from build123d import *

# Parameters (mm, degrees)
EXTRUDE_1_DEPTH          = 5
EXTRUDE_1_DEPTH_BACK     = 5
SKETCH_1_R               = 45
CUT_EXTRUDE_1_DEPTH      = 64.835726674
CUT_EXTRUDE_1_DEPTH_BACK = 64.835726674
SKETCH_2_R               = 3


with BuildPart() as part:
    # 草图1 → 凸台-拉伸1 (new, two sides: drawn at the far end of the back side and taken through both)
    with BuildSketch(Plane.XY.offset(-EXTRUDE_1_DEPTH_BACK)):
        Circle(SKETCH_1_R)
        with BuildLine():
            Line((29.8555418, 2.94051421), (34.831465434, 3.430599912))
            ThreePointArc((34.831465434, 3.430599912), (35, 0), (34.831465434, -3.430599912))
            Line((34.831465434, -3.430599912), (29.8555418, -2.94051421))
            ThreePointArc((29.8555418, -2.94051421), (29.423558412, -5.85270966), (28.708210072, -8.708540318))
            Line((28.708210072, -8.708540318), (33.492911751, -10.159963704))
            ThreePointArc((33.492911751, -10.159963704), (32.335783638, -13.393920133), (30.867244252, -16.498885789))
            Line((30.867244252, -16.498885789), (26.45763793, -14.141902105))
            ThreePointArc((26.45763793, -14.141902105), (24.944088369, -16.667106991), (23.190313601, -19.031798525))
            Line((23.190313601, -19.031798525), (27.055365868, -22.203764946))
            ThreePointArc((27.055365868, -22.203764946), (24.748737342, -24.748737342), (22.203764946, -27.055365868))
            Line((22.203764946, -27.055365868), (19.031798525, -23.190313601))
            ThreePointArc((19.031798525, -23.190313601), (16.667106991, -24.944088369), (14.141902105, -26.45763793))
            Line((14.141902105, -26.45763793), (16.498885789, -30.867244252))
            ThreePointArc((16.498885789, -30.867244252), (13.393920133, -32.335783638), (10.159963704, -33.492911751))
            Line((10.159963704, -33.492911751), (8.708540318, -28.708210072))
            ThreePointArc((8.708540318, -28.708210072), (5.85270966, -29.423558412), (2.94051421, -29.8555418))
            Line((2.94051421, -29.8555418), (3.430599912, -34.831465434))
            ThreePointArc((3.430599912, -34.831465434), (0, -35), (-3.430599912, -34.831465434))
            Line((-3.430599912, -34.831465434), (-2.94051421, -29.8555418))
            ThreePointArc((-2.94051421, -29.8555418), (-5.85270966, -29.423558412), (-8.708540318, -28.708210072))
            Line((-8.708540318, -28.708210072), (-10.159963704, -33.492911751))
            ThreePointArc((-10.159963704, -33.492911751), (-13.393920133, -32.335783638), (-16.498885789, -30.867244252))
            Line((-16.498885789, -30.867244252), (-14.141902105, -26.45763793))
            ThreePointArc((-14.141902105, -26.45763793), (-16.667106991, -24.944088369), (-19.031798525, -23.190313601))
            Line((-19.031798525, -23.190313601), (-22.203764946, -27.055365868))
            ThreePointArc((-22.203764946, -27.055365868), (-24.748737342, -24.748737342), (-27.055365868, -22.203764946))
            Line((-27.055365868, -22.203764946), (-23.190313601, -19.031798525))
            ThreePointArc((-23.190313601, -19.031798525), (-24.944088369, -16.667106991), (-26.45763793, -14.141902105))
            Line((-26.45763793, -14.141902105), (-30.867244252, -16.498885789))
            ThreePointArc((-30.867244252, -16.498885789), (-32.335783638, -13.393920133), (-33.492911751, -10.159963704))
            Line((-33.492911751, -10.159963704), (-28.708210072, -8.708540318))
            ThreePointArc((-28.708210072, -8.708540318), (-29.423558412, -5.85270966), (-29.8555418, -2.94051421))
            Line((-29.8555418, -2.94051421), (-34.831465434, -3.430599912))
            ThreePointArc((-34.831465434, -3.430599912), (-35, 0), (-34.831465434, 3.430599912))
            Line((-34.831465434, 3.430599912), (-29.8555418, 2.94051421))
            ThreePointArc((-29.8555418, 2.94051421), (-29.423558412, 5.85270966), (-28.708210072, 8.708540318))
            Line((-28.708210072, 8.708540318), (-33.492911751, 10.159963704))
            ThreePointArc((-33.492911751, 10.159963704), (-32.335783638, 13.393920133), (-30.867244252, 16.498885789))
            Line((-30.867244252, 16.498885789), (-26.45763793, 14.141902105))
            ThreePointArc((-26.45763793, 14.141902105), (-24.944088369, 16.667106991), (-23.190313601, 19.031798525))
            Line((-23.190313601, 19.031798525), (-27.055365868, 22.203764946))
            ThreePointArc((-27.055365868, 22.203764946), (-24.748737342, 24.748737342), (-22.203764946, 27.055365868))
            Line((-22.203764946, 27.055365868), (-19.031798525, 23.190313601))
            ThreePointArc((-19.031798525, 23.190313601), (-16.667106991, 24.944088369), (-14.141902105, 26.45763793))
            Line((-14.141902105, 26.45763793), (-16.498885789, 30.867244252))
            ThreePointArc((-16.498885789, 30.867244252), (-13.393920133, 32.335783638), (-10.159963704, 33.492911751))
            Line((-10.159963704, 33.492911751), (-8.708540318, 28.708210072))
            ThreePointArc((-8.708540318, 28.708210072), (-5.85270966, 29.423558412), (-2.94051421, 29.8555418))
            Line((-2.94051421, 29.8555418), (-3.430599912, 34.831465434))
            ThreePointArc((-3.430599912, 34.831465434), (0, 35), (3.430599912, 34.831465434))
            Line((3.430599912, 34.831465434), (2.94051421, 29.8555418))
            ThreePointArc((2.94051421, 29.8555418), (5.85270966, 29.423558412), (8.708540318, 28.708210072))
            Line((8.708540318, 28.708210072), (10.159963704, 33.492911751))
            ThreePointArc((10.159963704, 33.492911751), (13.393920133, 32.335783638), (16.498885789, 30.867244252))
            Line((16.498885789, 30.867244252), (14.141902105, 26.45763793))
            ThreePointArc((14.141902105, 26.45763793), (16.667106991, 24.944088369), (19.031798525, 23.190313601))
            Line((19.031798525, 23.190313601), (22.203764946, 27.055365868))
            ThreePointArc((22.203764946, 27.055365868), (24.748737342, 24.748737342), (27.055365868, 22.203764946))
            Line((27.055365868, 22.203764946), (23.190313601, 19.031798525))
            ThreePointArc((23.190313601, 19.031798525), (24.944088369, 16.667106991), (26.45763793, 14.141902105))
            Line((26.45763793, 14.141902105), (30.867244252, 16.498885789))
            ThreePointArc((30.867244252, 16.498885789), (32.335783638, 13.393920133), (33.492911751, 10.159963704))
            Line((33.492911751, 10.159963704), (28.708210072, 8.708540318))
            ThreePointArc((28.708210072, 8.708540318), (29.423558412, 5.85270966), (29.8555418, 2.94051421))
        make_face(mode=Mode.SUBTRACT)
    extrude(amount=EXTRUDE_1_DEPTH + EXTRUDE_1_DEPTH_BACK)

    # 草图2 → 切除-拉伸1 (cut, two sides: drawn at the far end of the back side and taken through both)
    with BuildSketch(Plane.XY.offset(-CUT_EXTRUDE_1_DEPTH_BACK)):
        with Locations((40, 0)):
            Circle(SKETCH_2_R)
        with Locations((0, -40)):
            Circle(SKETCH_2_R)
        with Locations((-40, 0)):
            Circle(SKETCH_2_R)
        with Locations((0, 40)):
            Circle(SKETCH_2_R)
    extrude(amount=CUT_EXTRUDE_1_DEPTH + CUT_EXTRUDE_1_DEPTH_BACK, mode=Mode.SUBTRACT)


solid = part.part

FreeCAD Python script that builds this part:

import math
import FreeCAD as App
import Part
import Sketcher
Q = App.Units.Quantity

doc = App.newDocument("Part")
body = doc.addObject("PartDesign::Body", "Body")

# Sketch on XY plane
sketch1 = doc.addObject("Sketcher::SketchObject", "Sketch")
body.addObject(sketch1)
sketch1.AttachmentSupport = (doc.XY_Plane, [""])
sketch1.MapMode = "FlatFace"
sketch1.addGeometry([
    Part.Circle(App.Vector(0, 0, 0), App.Vector(0, 0, 1), 45),  # 0
    Part.ArcOfCircle(Part.Circle(App.Vector(0, 0, 0), App.Vector(0, 0, 1), 30), math.radians(5.63), math.radians(16.87)),  # 1
    Part.LineSegment(App.Vector(30, 3, 0), App.Vector(35, 3, 0)),  # 2
    Part.ArcOfCircle(Part.Circle(App.Vector(0, 0, 0), App.Vector(0, 0, 1), 35), math.radians(-5.62), math.radians(5.62)),  # 3
    Part.LineSegment(App.Vector(35, -3, 0), App.Vector(30, -3, 0)),  # 4
    Part.ArcOfCircle(Part.Circle(App.Vector(0, 0, 0), App.Vector(0, 0, 1), 30), math.radians(-16.87), math.radians(-5.63)),  # 5
    Part.LineSegment(App.Vector(29, -9, 0), App.Vector(33, -10, 0)),  # 6
    Part.ArcOfCircle(Part.Circle(App.Vector(0, 0, 0), App.Vector(0, 0, 1), 35), math.radians(-28.13), math.radians(-16.88)),  # 7
    Part.LineSegment(App.Vector(31, -16, 0), App.Vector(26, -14, 0)),  # 8
    Part.ArcOfCircle(Part.Circle(App.Vector(0, 0, 0), App.Vector(0, 0, 1), 30), math.radians(-39.38), math.radians(-28.12)),  # 9
    Part.LineSegment(App.Vector(23, -19, 0), App.Vector(27, -22, 0)),  # 10
    Part.ArcOfCircle(Part.Circle(App.Vector(0, 0, 0), App.Vector(0, 0, 1), 35), math.radians(-50.63), math.radians(-39.37)),  # 11
    Part.LineSegment(App.Vector(22, -27, 0), App.Vector(19, -23, 0)),  # 12
    Part.ArcOfCircle(Part.Circle(App.Vector(0, 0, 0), App.Vector(0, 0, 1), 30), math.radians(-61.88), math.radians(-50.62)),  # 13
    Part.LineSegment(App.Vector(14, -26, 0), App.Vector(16, -31, 0)),  # 14
    Part.ArcOfCircle(Part.Circle(App.Vector(0, 0, 0), App.Vector(0, 0, 1), 35), math.radians(-73.12), math.radians(-61.87)),  # 15
    Part.LineSegment(App.Vector(10, -33, 0), App.Vector(9, -29, 0)),  # 16
    Part.ArcOfCircle(Part.Circle(App.Vector(0, 0, 0), App.Vector(0, 0, 1), 30), math.radians(-84.37), math.radians(-73.13)),  # 17
    Part.LineSegment(App.Vector(3, -30, 0), App.Vector(3, -35, 0)),  # 18
    Part.ArcOfCircle(Part.Circle(App.Vector(0, 0, 0), App.Vector(0, 0, 1), 35), math.radians(-95.62), math.radians(-84.38)),  # 19
    Part.LineSegment(App.Vector(-3, -35, 0), App.Vector(-3, -30, 0)),  # 20
    Part.ArcOfCircle(Part.Circle(App.Vector(0, 0, 0), App.Vector(0, 0, 1), 30), math.radians(-106.87), math.radians(-95.63)),  # 21
    Part.LineSegment(App.Vector(-9, -29, 0), App.Vector(-10, -33, 0)),  # 22
    Part.ArcOfCircle(Part.Circle(App.Vector(0, 0, 0), App.Vector(0, 0, 1), 35), math.radians(-118.13), math.radians(-106.88)),  # 23
    Part.LineSegment(App.Vector(-16, -31, 0), App.Vector(-14, -26, 0)),  # 24
    Part.ArcOfCircle(Part.Circle(App.Vector(0, 0, 0), App.Vector(0, 0, 1), 30), math.radians(-129.38), math.radians(-118.12)),  # 25
    Part.LineSegment(App.Vector(-19, -23, 0), App.Vector(-22, -27, 0)),  # 26
    Part.ArcOfCircle(Part.Circle(App.Vector(0, 0, 0), App.Vector(0, 0, 1), 35), math.radians(-140.63), math.radians(-129.37)),  # 27
    Part.LineSegment(App.Vector(-27, -22, 0), App.Vector(-23, -19, 0)),  # 28
    Part.ArcOfCircle(Part.Circle(App.Vector(0, 0, 0), App.Vector(0, 0, 1), 30), math.radians(-151.88), math.radians(-140.62)),  # 29
    Part.LineSegment(App.Vector(-26, -14, 0), App.Vector(-31, -16, 0)),  # 30
    Part.ArcOfCircle(Part.Circle(App.Vector(0, 0, 0), App.Vector(0, 0, 1), 35), math.radians(-163.12), math.radians(-151.87)),  # 31
    Part.LineSegment(App.Vector(-33, -10, 0), App.Vector(-29, -9, 0)),  # 32
    Part.ArcOfCircle(Part.Circle(App.Vector(0, 0, 0), App.Vector(0, 0, 1), 30), math.radians(-174.37), math.radians(-163.13)),  # 33
    Part.LineSegment(App.Vector(-30, -3, 0), App.Vector(-35, -3, 0)),  # 34
    Part.ArcOfCircle(Part.Circle(App.Vector(0, 0, 0), App.Vector(0, 0, 1), 35), math.radians(174.38), math.radians(185.62)),  # 35
    Part.LineSegment(App.Vector(-35, 3, 0), App.Vector(-30, 3, 0)),  # 36
    Part.ArcOfCircle(Part.Circle(App.Vector(0, 0, 0), App.Vector(0, 0, 1), 30), math.radians(163.13), math.radians(174.37)),  # 37
    Part.LineSegment(App.Vector(-29, 9, 0), App.Vector(-33, 10, 0)),  # 38
    Part.ArcOfCircle(Part.Circle(App.Vector(0, 0, 0), App.Vector(0, 0, 1), 35), math.radians(151.87), math.radians(163.12)),  # 39
    Part.LineSegment(App.Vector(-31, 16, 0), App.Vector(-26, 14, 0)),  # 40
    Part.ArcOfCircle(Part.Circle(App.Vector(0, 0, 0), App.Vector(0, 0, 1), 30), math.radians(140.62), math.radians(151.88)),  # 41
    Part.LineSegment(App.Vector(-23, 19, 0), App.Vector(-27, 22, 0)),  # 42
    Part.ArcOfCircle(Part.Circle(App.Vector(0, 0, 0), App.Vector(0, 0, 1), 35), math.radians(129.37), math.radians(140.63)),  # 43
    Part.LineSegment(App.Vector(-22, 27, 0), App.Vector(-19, 23, 0)),  # 44
    Part.ArcOfCircle(Part.Circle(App.Vector(0, 0, 0), App.Vector(0, 0, 1), 30), math.radians(118.12), math.radians(129.38)),  # 45
    Part.LineSegment(App.Vector(-14, 26, 0), App.Vector(-16, 31, 0)),  # 46
    Part.ArcOfCircle(Part.Circle(App.Vector(0, 0, 0), App.Vector(0, 0, 1), 35), math.radians(106.88), math.radians(118.13)),  # 47
    Part.LineSegment(App.Vector(-10, 33, 0), App.Vector(-9, 29, 0)),  # 48
    Part.ArcOfCircle(Part.Circle(App.Vector(0, 0, 0), App.Vector(0, 0, 1), 30), math.radians(95.63), math.radians(106.87)),  # 49
    Part.LineSegment(App.Vector(-3, 30, 0), App.Vector(-3, 35, 0)),  # 50
    Part.ArcOfCircle(Part.Circle(App.Vector(0, 0, 0), App.Vector(0, 0, 1), 35), math.radians(84.38), math.radians(95.62)),  # 51
    Part.LineSegment(App.Vector(3, 35, 0), App.Vector(3, 30, 0)),  # 52
    Part.ArcOfCircle(Part.Circle(App.Vector(0, 0, 0), App.Vector(0, 0, 1), 30), math.radians(73.13), math.radians(84.37)),  # 53
    Part.LineSegment(App.Vector(9, 29, 0), App.Vector(10, 33, 0)),  # 54
    Part.ArcOfCircle(Part.Circle(App.Vector(0, 0, 0), App.Vector(0, 0, 1), 35), math.radians(61.87), math.radians(73.12)),  # 55
    Part.LineSegment(App.Vector(16, 31, 0), App.Vector(14, 26, 0)),  # 56
    Part.ArcOfCircle(Part.Circle(App.Vector(0, 0, 0), App.Vector(0, 0, 1), 30), math.radians(50.62), math.radians(61.88)),  # 57
    Part.LineSegment(App.Vector(19, 23, 0), App.Vector(22, 27, 0)),  # 58
    Part.ArcOfCircle(Part.Circle(App.Vector(0, 0, 0), App.Vector(0, 0, 1), 35), math.radians(39.37), math.radians(50.63)),  # 59
    Part.LineSegment(App.Vector(27, 22, 0), App.Vector(23, 19, 0)),  # 60
    Part.ArcOfCircle(Part.Circle(App.Vector(0, 0, 0), App.Vector(0, 0, 1), 30), math.radians(28.12), math.radians(39.38)),  # 61
    Part.LineSegment(App.Vector(26, 14, 0), App.Vector(31, 16, 0)),  # 62
    Part.ArcOfCircle(Part.Circle(App.Vector(0, 0, 0), App.Vector(0, 0, 1), 35), math.radians(16.88), math.radians(28.13)),  # 63
    Part.LineSegment(App.Vector(33, 10, 0), App.Vector(29, 9, 0)),  # 64
], False)
sketch1.addConstraint([
    Sketcher.Constraint("Coincident", 1, 1, 2, 1),
    Sketcher.Constraint("Coincident", 2, 2, 3, 2),
    Sketcher.Constraint("Coincident", 3, 1, 4, 1),
    Sketcher.Constraint("Coincident", 4, 2, 5, 2),
    Sketcher.Constraint("Coincident", 5, 1, 6, 1),
    Sketcher.Constraint("Coincident", 6, 2, 7, 2),
    Sketcher.Constraint("Coincident", 7, 1, 8, 1),
    Sketcher.Constraint("Coincident", 8, 2, 9, 2),
    Sketcher.Constraint("Coincident", 9, 1, 10, 1),
    Sketcher.Constraint("Coincident", 10, 2, 11, 2),
    Sketcher.Constraint("Coincident", 11, 1, 12, 1),
    Sketcher.Constraint("Coincident", 12, 2, 13, 2),
    Sketcher.Constraint("Coincident", 13, 1, 14, 1),
    Sketcher.Constraint("Coincident", 14, 2, 15, 2),
    Sketcher.Constraint("Coincident", 15, 1, 16, 1),
    Sketcher.Constraint("Coincident", 16, 2, 17, 2),
    Sketcher.Constraint("Coincident", 17, 1, 18, 1),
    Sketcher.Constraint("Coincident", 18, 2, 19, 2),
    Sketcher.Constraint("Coincident", 19, 1, 20, 1),
    Sketcher.Constraint("Coincident", 20, 2, 21, 2),
    Sketcher.Constraint("Coincident", 21, 1, 22, 1),
    Sketcher.Constraint("Coincident", 22, 2, 23, 2),
    Sketcher.Constraint("Coincident", 23, 1, 24, 1),
    Sketcher.Constraint("Coincident", 24, 2, 25, 2),
    Sketcher.Constraint("Coincident", 25, 1, 26, 1),
    Sketcher.Constraint("Coincident", 26, 2, 27, 2),
    Sketcher.Constraint("Coincident", 27, 1, 28, 1),
    Sketcher.Constraint("Coincident", 28, 2, 29, 2),
    Sketcher.Constraint("Coincident", 29, 1, 30, 1),
    Sketcher.Constraint("Coincident", 30, 2, 31, 2),
    Sketcher.Constraint("Coincident", 31, 1, 32, 1),
    Sketcher.Constraint("Coincident", 32, 2, 33, 2),
    Sketcher.Constraint("Coincident", 33, 1, 34, 1),
    Sketcher.Constraint("Coincident", 34, 2, 35, 2),
    Sketcher.Constraint("Coincident", 35, 1, 36, 1),
    Sketcher.Constraint("Coincident", 36, 2, 37, 2),
    Sketcher.Constraint("Coincident", 37, 1, 38, 1),
    Sketcher.Constraint("Coincident", 38, 2, 39, 2),
    Sketcher.Constraint("Coincident", 39, 1, 40, 1),
    Sketcher.Constraint("Coincident", 40, 2, 41, 2),
    Sketcher.Constraint("Coincident", 41, 1, 42, 1),
    Sketcher.Constraint("Coincident", 42, 2, 43, 2),
    Sketcher.Constraint("Coincident", 43, 1, 44, 1),
    Sketcher.Constraint("Coincident", 44, 2, 45, 2),
    Sketcher.Constraint("Coincident", 45, 1, 46, 1),
    Sketcher.Constraint("Coincident", 46, 2, 47, 2),
    Sketcher.Constraint("Coincident", 47, 1, 48, 1),
    Sketcher.Constraint("Coincident", 48, 2, 49, 2),
    Sketcher.Constraint("Coincident", 49, 1, 50, 1),
    Sketcher.Constraint("Coincident", 50, 2, 51, 2),
    Sketcher.Constraint("Coincident", 51, 1, 52, 1),
    Sketcher.Constraint("Coincident", 52, 2, 53, 2),
    Sketcher.Constraint("Coincident", 53, 1, 54, 1),
    Sketcher.Constraint("Coincident", 54, 2, 55, 2),
    Sketcher.Constraint("Coincident", 55, 1, 56, 1),
    Sketcher.Constraint("Coincident", 56, 2, 57, 2),
    Sketcher.Constraint("Coincident", 57, 1, 58, 1),
    Sketcher.Constraint("Coincident", 58, 2, 59, 2),
    Sketcher.Constraint("Coincident", 59, 1, 60, 1),
    Sketcher.Constraint("Coincident", 60, 2, 61, 2),
    Sketcher.Constraint("Coincident", 61, 1, 62, 1),
    Sketcher.Constraint("Coincident", 62, 2, 63, 2),
    Sketcher.Constraint("Coincident", 63, 1, 64, 1),
    Sketcher.Constraint("Coincident", 64, 2, 1, 2),
    Sketcher.Constraint("Coincident", 0, 3, -1, 1),
    Sketcher.Constraint("Coincident", 1, 3, -1, 1),
    Sketcher.Constraint("Coincident", 3, 3, -1, 1),
    Sketcher.Constraint("Coincident", 5, 3, -1, 1),
    Sketcher.Constraint("Coincident", 7, 3, -1, 1),
    Sketcher.Constraint("Coincident", 9, 3, -1, 1),
    Sketcher.Constraint("Coincident", 11, 3, -1, 1),
    Sketcher.Constraint("Coincident", 13, 3, -1, 1),
    Sketcher.Constraint("Coincident", 15, 3, -1, 1),
    Sketcher.Constraint("Coincident", 17, 3, -1, 1),
    Sketcher.Constraint("Coincident", 19, 3, -1, 1),
    Sketcher.Constraint("Coincident", 21, 3, -1, 1),
    Sketcher.Constraint("Coincident", 23, 3, -1, 1),
    Sketcher.Constraint("Coincident", 25, 3, -1, 1),
    Sketcher.Constraint("Coincident", 27, 3, -1, 1),
    Sketcher.Constraint("Coincident", 29, 3, -1, 1),
    Sketcher.Constraint("Coincident", 31, 3, -1, 1),
    Sketcher.Constraint("Coincident", 33, 3, -1, 1),
    Sketcher.Constraint("Coincident", 35, 3, -1, 1),
    Sketcher.Constraint("Coincident", 37, 3, -1, 1),
    Sketcher.Constraint("Coincident", 39, 3, -1, 1),
    Sketcher.Constraint("Coincident", 41, 3, -1, 1),
    Sketcher.Constraint("Coincident", 43, 3, -1, 1),
    Sketcher.Constraint("Coincident", 45, 3, -1, 1),
    Sketcher.Constraint("Coincident", 47, 3, -1, 1),
    Sketcher.Constraint("Coincident", 49, 3, -1, 1),
    Sketcher.Constraint("Coincident", 51, 3, -1, 1),
    Sketcher.Constraint("Coincident", 53, 3, -1, 1),
    Sketcher.Constraint("Coincident", 55, 3, -1, 1),
    Sketcher.Constraint("Coincident", 57, 3, -1, 1),
    Sketcher.Constraint("Coincident", 59, 3, -1, 1),
    Sketcher.Constraint("Coincident", 61, 3, -1, 1),
    Sketcher.Constraint("Coincident", 63, 3, -1, 1),
    Sketcher.Constraint("Equal", 1, 5),
    Sketcher.Constraint("Equal", 3, 7),
    Sketcher.Constraint("Equal", 5, 9),
    Sketcher.Constraint("Equal", 7, 11),
    Sketcher.Constraint("Equal", 9, 13),
    Sketcher.Constraint("Equal", 11, 15),
    Sketcher.Constraint("Equal", 13, 17),
    Sketcher.Constraint("Equal", 15, 19),
    Sketcher.Constraint("Equal", 17, 21),
    Sketcher.Constraint("Equal", 19, 23),
    Sketcher.Constraint("Equal", 21, 25),
    Sketcher.Constraint("Equal", 23, 27),
    Sketcher.Constraint("Equal", 25, 29),
    Sketcher.Constraint("Equal", 27, 31),
    Sketcher.Constraint("Equal", 29, 33),
    Sketcher.Constraint("Equal", 31, 35),
    Sketcher.Constraint("Equal", 33, 37),
    Sketcher.Constraint("Equal", 35, 39),
    Sketcher.Constraint("Equal", 37, 41),
    Sketcher.Constraint("Equal", 39, 43),
    Sketcher.Constraint("Equal", 41, 45),
    Sketcher.Constraint("Equal", 43, 47),
    Sketcher.Constraint("Equal", 45, 49),
    Sketcher.Constraint("Equal", 47, 51),
    Sketcher.Constraint("Equal", 49, 53),
    Sketcher.Constraint("Equal", 51, 55),
    Sketcher.Constraint("Equal", 53, 57),
    Sketcher.Constraint("Equal", 55, 59),
    Sketcher.Constraint("Equal", 57, 61),
    Sketcher.Constraint("Equal", 59, 63),
    Sketcher.Constraint("Perpendicular", 2, 18),
    Sketcher.Constraint("Perpendicular", 4, 20),
    Sketcher.Constraint("Perpendicular", 6, 22),
    Sketcher.Constraint("Perpendicular", 8, 24),
    Sketcher.Constraint("Perpendicular", 10, 26),
    Sketcher.Constraint("Perpendicular", 12, 28),
    Sketcher.Constraint("Perpendicular", 14, 30),
    Sketcher.Constraint("Perpendicular", 16, 32),
    Sketcher.Constraint("Perpendicular", 18, 34),
    Sketcher.Constraint("Perpendicular", 20, 36),
    Sketcher.Constraint("Perpendicular", 22, 38),
    Sketcher.Constraint("Perpendicular", 24, 40),
    Sketcher.Constraint("Perpendicular", 26, 42),
    Sketcher.Constraint("Perpendicular", 28, 44),
    Sketcher.Constraint("Perpendicular", 30, 46),
    Sketcher.Constraint("Perpendicular", 32, 48),
    Sketcher.Constraint("Perpendicular", 34, 50),
    Sketcher.Constraint("Perpendicular", 36, 52),
    Sketcher.Constraint("Perpendicular", 38, 54),
    Sketcher.Constraint("Perpendicular", 40, 56),
    Sketcher.Constraint("Perpendicular", 42, 58),
    Sketcher.Constraint("Perpendicular", 44, 60),
    Sketcher.Constraint("Perpendicular", 46, 62),
    Sketcher.Constraint("Perpendicular", 48, 64),
    Sketcher.Constraint("Horizontal", 18, 2, 19, 1),
    Sketcher.Constraint("Horizontal", 17, 1, 20, 2),
    Sketcher.Constraint("Horizontal", 16, 2, 21, 1),
    Sketcher.Constraint("Horizontal", 15, 1, 22, 2),
    Sketcher.Constraint("Horizontal", 14, 2, 23, 1),
    Sketcher.Constraint("Horizontal", 13, 1, 24, 2),
    Sketcher.Constraint("Horizontal", 12, 2, 25, 1),
    Sketcher.Constraint("Horizontal", 11, 1, 26, 2),
    Sketcher.Constraint("Horizontal", 10, 2, 27, 1),
    Sketcher.Constraint("Horizontal", 8, 2, 29, 1),
    Sketcher.Constraint("Horizontal", 6, 2, 31, 1),
    Sketcher.Constraint("Horizontal", 4, 2, 33, 1),
    Sketcher.Constraint("Horizontal", 2, 2, 35, 1),
    Sketcher.Constraint("Horizontal", 50, 2, 51, 1),
    Sketcher.Constraint("Horizontal", 48, 2, 53, 1),
    Sketcher.Constraint("Horizontal", 46, 2, 55, 1),
    Sketcher.Constraint("Horizontal", 44, 2, 57, 1),
    Sketcher.Constraint("Horizontal", 42, 2, 59, 1),
    Sketcher.Constraint("Horizontal", 40, 2, 61, 1),
    Sketcher.Constraint("Horizontal", 38, 2, 63, 1),
    Sketcher.Constraint("Vertical", 2, 2, 3, 1),
    Sketcher.Constraint("Vertical", 32, 2, 37, 1),
    Sketcher.Constraint("Vertical", 30, 2, 39, 1),
    Sketcher.Constraint("Vertical", 28, 2, 41, 1),
    Sketcher.Constraint("Vertical", 26, 2, 43, 1),
    Sketcher.Constraint("Vertical", 24, 2, 45, 1),
    Sketcher.Constraint("Vertical", 22, 2, 47, 1),
    Sketcher.Constraint("Vertical", 20, 2, 49, 1),
    Sketcher.Constraint("Diameter", 0, Q("90 mm")),
    Sketcher.Constraint("Radius", 1, Q("30 mm")),
    Sketcher.Constraint("Radius", 3, Q("35 mm")),
    Sketcher.Constraint("DistanceY", -1, 1, 2, 2, Q("3.4306 mm")),
    Sketcher.Constraint("DistanceY", 9, 1, -1, 1, Q("19.031799 mm")),
    Sketcher.Constraint("DistanceX", -1, 1, 12, 2, Q("19.031799 mm")),
    Sketcher.Constraint("DistanceX", -1, 1, 18, 2, Q("3.4306 mm")),
    Sketcher.Constraint("DistanceX", -1, 1, 1, 1, Q("29.855542 mm")),
    Sketcher.Constraint("DistanceX", -1, 1, 5, 1, Q("28.70821 mm")),
    Sketcher.Constraint("DistanceX", -1, 1, 6, 2, Q("33.492912 mm")),
    Sketcher.Constraint("DistanceY", 15, 1, -1, 1, Q("33.492912 mm")),
    Sketcher.Constraint("DistanceX", -1, 1, 7, 1, Q("30.867244 mm")),
    Sketcher.Constraint("DistanceX", -1, 1, 8, 2, Q("26.457638 mm")),
    Sketcher.Constraint("DistanceX", -1, 1, 10, 2, Q("27.055366 mm")),
    Sketcher.Constraint("DistanceX", -1, 1, 13, 1, Q("14.141902 mm")),
])
pad1 = doc.addObject("PartDesign::Pad", "Pad")
body.addObject(pad1)
pad1.Profile = sketch1
pad1.Type = "TwoLengths"
pad1.Length = 5
pad1.Length2 = 5

# Sketch on XY plane
sketch2 = doc.addObject("Sketcher::SketchObject", "Sketch001")
body.addObject(sketch2)
sketch2.AttachmentSupport = (doc.XY_Plane, [""])
sketch2.MapMode = "FlatFace"
sketch2.addGeometry([
    Part.Circle(App.Vector(40, 0, 0), App.Vector(0, 0, 1), 3),
    Part.Circle(App.Vector(0, -40, 0), App.Vector(0, 0, 1), 3),
    Part.Circle(App.Vector(-40, 0, 0), App.Vector(0, 0, 1), 3),
    Part.Circle(App.Vector(0, 40, 0), App.Vector(0, 0, 1), 3),
], False)
sketch2.addConstraint([
    Sketcher.Constraint("Equal", 0, 1),
    Sketcher.Constraint("Equal", 1, 2),
    Sketcher.Constraint("Equal", 2, 3),
    Sketcher.Constraint("Symmetric", 0, 3, 2, 3, -1, 1),
    Sketcher.Constraint("Symmetric", 1, 3, 3, 3, -1, 1),
    Sketcher.Constraint("PointOnObject", 0, 3, -1),
    Sketcher.Constraint("PointOnObject", 1, 3, -2),
    Sketcher.Constraint("Diameter", 0, Q("6 mm")),
    Sketcher.Constraint("DistanceX", -1, 1, 0, 3, Q("40 mm")),
    Sketcher.Constraint("DistanceY", 1, 3, -1, 1, Q("40 mm")),
])
pocket1 = doc.addObject("PartDesign::Pocket", "Pocket")
body.addObject(pocket1)
pocket1.Profile = sketch2
pocket1.Type = "ThroughAll"
pocket1.Midplane = True

doc.recompute()
